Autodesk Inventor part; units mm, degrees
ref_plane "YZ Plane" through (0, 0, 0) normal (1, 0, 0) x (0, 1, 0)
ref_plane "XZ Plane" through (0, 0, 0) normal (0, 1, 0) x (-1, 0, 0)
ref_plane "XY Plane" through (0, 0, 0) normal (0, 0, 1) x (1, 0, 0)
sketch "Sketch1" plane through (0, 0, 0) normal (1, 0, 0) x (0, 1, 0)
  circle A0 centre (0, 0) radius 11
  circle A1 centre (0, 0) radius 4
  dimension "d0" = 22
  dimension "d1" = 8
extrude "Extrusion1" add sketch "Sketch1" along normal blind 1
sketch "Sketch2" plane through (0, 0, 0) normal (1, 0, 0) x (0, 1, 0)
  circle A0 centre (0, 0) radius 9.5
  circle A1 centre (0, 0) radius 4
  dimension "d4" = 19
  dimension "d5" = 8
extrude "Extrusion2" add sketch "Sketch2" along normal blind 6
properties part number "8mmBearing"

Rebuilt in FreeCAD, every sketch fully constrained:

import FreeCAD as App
import Part
import Sketcher
from FreeCAD import Vector
Q = App.Units.Quantity

doc = App.newDocument("Part")
params = doc.addObject("Spreadsheet::Sheet", "Params")
for row, (alias, value) in enumerate([
    ("sketch1_diameter", "22 mm"),
    ("sketch1_diameter2", "8 mm"),
    ("pad1_length", "1 mm"),
    ("sketch2_diameter", "19 mm"),
    ("sketch2_diameter2", "8 mm"),
    ("pad2_length", "6 mm"),
], start=1):
    params.set(f"A{row}", alias)
    params.set(f"B{row}", "=" + value)
    params.setAlias(f"B{row}", alias)

body = doc.addObject("PartDesign::Body", "Body")

# Sketch on YZ plane
sketch1 = body.newObject("Sketcher::SketchObject", "Sketch")
sketch1.AttachmentSupport = (doc.getObject("YZ_Plane"), [""])
sketch1.MapMode = "FlatFace"
sketch1.addGeometry([
    Part.Circle(Vector(0, 0, 0), Vector(0, 0, 1), 11),
    Part.Circle(Vector(0, 0, 0), Vector(0, 0, 1), 4),
], False)
sketch1.addConstraint([
    Sketcher.Constraint("Coincident", 0, 3, -1, 1),
    Sketcher.Constraint("Coincident", 1, 3, -1, 1),
    Sketcher.Constraint("Diameter", 0, Q("22 mm")),
    Sketcher.Constraint("Diameter", 1, Q("8 mm")),
])
sketch1.setExpression("Constraints[2]", "Params.sketch1_diameter")
sketch1.setExpression("Constraints[3]", "Params.sketch1_diameter2")
pad1 = body.newObject("PartDesign::Pad", "Pad")
pad1.Profile = sketch1
pad1.setExpression("Length", "Params.pad1_length")

# Sketch on YZ plane
sketch2 = body.newObject("Sketcher::SketchObject", "Sketch001")
sketch2.AttachmentSupport = (doc.getObject("YZ_Plane"), [""])
sketch2.MapMode = "FlatFace"
sketch2.addGeometry([
    Part.Circle(Vector(0, 0, 0), Vector(0, 0, 1), 9.5),
    Part.Circle(Vector(0, 0, 0), Vector(0, 0, 1), 4),
], False)
sketch2.addConstraint([
    Sketcher.Constraint("Coincident", 0, 3, -1, 1),
    Sketcher.Constraint("Coincident", 1, 3, -1, 1),
    Sketcher.Constraint("Diameter", 0, Q("19 mm")),
    Sketcher.Constraint("Diameter", 1, Q("8 mm")),
])
sketch2.setExpression("Constraints[2]", "Params.sketch2_diameter")
sketch2.setExpression("Constraints[3]", "Params.sketch2_diameter2")
pad2 = body.newObject("PartDesign::Pad", "Pad001")
pad2.Profile = sketch2
pad2.setExpression("Length", "Params.pad2_length")

doc.recompute()
